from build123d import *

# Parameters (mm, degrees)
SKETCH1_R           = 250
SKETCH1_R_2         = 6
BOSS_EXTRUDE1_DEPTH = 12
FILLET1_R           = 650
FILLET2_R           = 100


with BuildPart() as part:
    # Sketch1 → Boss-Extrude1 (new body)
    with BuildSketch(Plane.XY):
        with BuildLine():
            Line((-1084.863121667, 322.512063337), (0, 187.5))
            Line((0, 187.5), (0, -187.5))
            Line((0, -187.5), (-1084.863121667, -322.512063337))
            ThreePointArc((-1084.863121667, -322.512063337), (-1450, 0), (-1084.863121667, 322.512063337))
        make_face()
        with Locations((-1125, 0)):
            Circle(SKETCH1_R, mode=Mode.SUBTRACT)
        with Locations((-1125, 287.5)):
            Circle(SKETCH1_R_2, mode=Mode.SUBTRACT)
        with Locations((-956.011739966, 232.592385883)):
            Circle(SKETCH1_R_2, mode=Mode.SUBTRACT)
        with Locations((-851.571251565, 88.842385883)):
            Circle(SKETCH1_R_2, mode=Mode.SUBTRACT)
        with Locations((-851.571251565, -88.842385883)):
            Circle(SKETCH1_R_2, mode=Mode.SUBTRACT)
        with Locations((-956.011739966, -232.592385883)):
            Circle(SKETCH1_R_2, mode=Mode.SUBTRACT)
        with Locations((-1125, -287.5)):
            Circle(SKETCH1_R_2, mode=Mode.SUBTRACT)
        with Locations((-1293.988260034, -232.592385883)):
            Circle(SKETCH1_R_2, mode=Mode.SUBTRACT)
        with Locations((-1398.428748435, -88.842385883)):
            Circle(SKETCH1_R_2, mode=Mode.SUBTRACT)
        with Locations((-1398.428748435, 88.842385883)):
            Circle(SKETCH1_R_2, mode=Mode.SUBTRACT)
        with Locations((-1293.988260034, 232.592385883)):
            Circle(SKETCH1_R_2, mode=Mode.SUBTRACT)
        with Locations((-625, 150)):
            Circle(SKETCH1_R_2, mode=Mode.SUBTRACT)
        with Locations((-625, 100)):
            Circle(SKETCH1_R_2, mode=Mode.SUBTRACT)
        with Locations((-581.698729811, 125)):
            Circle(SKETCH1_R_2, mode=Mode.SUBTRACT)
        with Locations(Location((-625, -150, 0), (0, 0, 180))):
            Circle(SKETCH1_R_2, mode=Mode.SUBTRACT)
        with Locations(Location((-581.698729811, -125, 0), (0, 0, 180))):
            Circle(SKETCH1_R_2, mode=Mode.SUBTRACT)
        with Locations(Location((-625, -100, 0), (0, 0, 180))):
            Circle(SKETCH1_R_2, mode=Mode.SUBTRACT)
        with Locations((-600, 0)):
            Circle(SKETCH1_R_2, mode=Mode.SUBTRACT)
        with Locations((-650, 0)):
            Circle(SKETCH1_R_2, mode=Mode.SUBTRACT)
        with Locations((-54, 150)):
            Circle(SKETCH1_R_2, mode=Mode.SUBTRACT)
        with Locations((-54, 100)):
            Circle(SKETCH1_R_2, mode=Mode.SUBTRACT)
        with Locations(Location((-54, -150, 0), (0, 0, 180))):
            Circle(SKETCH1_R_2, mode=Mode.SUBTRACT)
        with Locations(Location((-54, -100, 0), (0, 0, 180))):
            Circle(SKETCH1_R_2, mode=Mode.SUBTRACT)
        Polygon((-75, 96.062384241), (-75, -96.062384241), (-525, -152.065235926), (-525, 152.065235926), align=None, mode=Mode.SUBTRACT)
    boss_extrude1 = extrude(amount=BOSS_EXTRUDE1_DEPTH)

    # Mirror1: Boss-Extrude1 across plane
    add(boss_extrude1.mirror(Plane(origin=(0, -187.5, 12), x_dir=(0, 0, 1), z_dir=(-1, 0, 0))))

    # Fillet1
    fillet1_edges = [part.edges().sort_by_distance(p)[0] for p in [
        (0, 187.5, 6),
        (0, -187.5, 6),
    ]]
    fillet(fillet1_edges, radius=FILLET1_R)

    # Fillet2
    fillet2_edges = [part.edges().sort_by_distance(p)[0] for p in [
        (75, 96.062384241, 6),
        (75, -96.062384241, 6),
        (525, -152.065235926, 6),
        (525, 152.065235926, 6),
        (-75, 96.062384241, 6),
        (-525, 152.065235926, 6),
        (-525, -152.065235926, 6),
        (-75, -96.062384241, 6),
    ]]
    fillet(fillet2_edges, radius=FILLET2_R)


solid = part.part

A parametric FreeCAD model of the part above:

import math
import FreeCAD as App
import Part
import Sketcher
Q = App.Units.Quantity


def edges_at(feature, points):
    """Names of the edges that pass closest to the given points."""
    edges = feature.Shape.Edges
    near = lambda p: min(range(len(edges)), key=lambda i: edges[i].distToShape(Part.Vertex(*p))[0])
    return sorted({f"Edge{near(p) + 1}" for p in points})

doc = App.newDocument("Part")
body = doc.addObject("PartDesign::Body", "Body")

# Sketch on XY plane
sketch1 = doc.addObject("Sketcher::SketchObject", "Sketch")
body.addObject(sketch1)
sketch1.AttachmentSupport = (doc.XY_Plane, [""])
sketch1.MapMode = "FlatFace"
sketch1.addGeometry([
    Part.LineSegment(App.Vector(0, 188, 0), App.Vector(-1085, 323, 0)),  # 0
    Part.ArcOfCircle(Part.Circle(App.Vector(-1125, 0, 0), App.Vector(0, 0, 1), 325), math.radians(83), math.radians(277)),  # 1
    Part.LineSegment(App.Vector(-1085, -323, 0), App.Vector(0, -188, 0)),  # 2
    Part.LineSegment(App.Vector(0, -188, 0), App.Vector(0, 188, 0)),  # 3
    Part.Circle(App.Vector(-54, -150, 0), App.Vector(0, 0, 1), 6),  # 4
    Part.Circle(App.Vector(-625, -150, 0), App.Vector(0, 0, 1), 6),  # 5
    Part.Circle(App.Vector(-54, -100, 0), App.Vector(0, 0, 1), 6),  # 6
    Part.Circle(App.Vector(-582, -125, 0), App.Vector(0, 0, 1), 6),  # 7
    Part.Circle(App.Vector(-625, -100, 0), App.Vector(0, 0, 1), 6),  # 8
    Part.Circle(App.Vector(-956, -233, 0), App.Vector(0, 0, 1), 6),  # 9
    Part.Circle(App.Vector(-1125, -288, 0), App.Vector(0, 0, 1), 6),  # 10
    Part.Circle(App.Vector(-1294, -233, 0), App.Vector(0, 0, 1), 6),  # 11
    Part.Circle(App.Vector(-852, -89, 0), App.Vector(0, 0, 1), 6),  # 12
    Part.Circle(App.Vector(-1398, -89, 0), App.Vector(0, 0, 1), 6),  # 13
    Part.LineSegment(App.Vector(-75, 96, 0), App.Vector(-75, -96, 0)),  # 14
    Part.LineSegment(App.Vector(-75, -96, 0), App.Vector(-525, -152, 0)),  # 15
    Part.LineSegment(App.Vector(-525, -152, 0), App.Vector(-525, 152, 0)),  # 16
    Part.LineSegment(App.Vector(-525, 152, 0), App.Vector(-75, 96, 0)),  # 17
    Part.Circle(App.Vector(-54, 100, 0), App.Vector(0, 0, 1), 6),  # 18
    Part.Circle(App.Vector(-600, 0, 0), App.Vector(0, 0, 1), 6),  # 19
    Part.Circle(App.Vector(-650, 0, 0), App.Vector(0, 0, 1), 6),  # 20
    Part.Circle(App.Vector(-625, 100, 0), App.Vector(0, 0, 1), 6),  # 21
    Part.Circle(App.Vector(-582, 125, 0), App.Vector(0, 0, 1), 6),  # 22
    Part.Circle(App.Vector(-54, 150, 0), App.Vector(0, 0, 1), 6),  # 23
    Part.Circle(App.Vector(-625, 150, 0), App.Vector(0, 0, 1), 6),  # 24
    Part.Circle(App.Vector(-852, 89, 0), App.Vector(0, 0, 1), 6),  # 25
    Part.Circle(App.Vector(-1125, 0, 0), App.Vector(0, 0, 1), 250),  # 26
    Part.Circle(App.Vector(-1398, 89, 0), App.Vector(0, 0, 1), 6),  # 27
    Part.Circle(App.Vector(-956, 233, 0), App.Vector(0, 0, 1), 6),  # 28
    Part.Circle(App.Vector(-1125, 288, 0), App.Vector(0, 0, 1), 6),  # 29
    Part.Circle(App.Vector(-1294, 233, 0), App.Vector(0, 0, 1), 6),  # 30
], False)
sketch1.addConstraint([
    Sketcher.Constraint("Tangent", 0, 2, 1, 1),
    Sketcher.Constraint("Tangent", 1, 2, 2, 1),
    Sketcher.Constraint("Coincident", 2, 2, 3, 1),
    Sketcher.Constraint("Coincident", 3, 2, 0, 1),
    Sketcher.Constraint("Coincident", 14, 2, 15, 1),
    Sketcher.Constraint("Coincident", 15, 2, 16, 1),
    Sketcher.Constraint("Coincident", 16, 2, 17, 1),
    Sketcher.Constraint("Coincident", 17, 2, 14, 1),
    Sketcher.Constraint("Vertical", 3),
    Sketcher.Constraint("Vertical", 14),
    Sketcher.Constraint("Vertical", 16),
    Sketcher.Constraint("Coincident", 26, 3, 1, 3),
    Sketcher.Constraint("Equal", 4, 5),
    Sketcher.Constraint("Equal", 5, 6),
    Sketcher.Constraint("Equal", 6, 7),
    Sketcher.Constraint("Equal", 7, 8),
    Sketcher.Constraint("Equal", 8, 9),
    Sketcher.Constraint("Equal", 9, 10),
    Sketcher.Constraint("Equal", 10, 11),
    Sketcher.Constraint("Equal", 11, 12),
    Sketcher.Constraint("Equal", 12, 13),
    Sketcher.Constraint("Equal", 13, 18),
    Sketcher.Constraint("Equal", 18, 19),
    Sketcher.Constraint("Equal", 19, 20),
    Sketcher.Constraint("Equal", 20, 21),
    Sketcher.Constraint("Equal", 21, 22),
    Sketcher.Constraint("Equal", 22, 23),
    Sketcher.Constraint("Equal", 23, 24),
    Sketcher.Constraint("Equal", 24, 25),
    Sketcher.Constraint("Equal", 25, 27),
    Sketcher.Constraint("Equal", 27, 28),
    Sketcher.Constraint("Equal", 28, 29),
    Sketcher.Constraint("Equal", 29, 30),
    Sketcher.Constraint("Symmetric", 2, 2, 3, 2, -1, 1),
    Sketcher.Constraint("Symmetric", 6, 3, 18, 3, -1),
    Sketcher.Constraint("Symmetric", 8, 3, 21, 3, -1),
    Sketcher.Constraint("Symmetric", 7, 3, 22, 3, -1),
    Sketcher.Constraint("Symmetric", 4, 3, 23, 3, -1),
    Sketcher.Constraint("Symmetric", 5, 3, 24, 3, -1),
    Sketcher.Constraint("Symmetric", 12, 3, 25, 3, -1),
    Sketcher.Constraint("Symmetric", 13, 3, 27, 3, -1),
    Sketcher.Constraint("Symmetric", 9, 3, 28, 3, -1),
    Sketcher.Constraint("Symmetric", 10, 3, 29, 3, -1),
    Sketcher.Constraint("Symmetric", 11, 3, 30, 3, -1),
    Sketcher.Constraint("PointOnObject", 1, 3, -1),
    Sketcher.Constraint("PointOnObject", 19, 3, -1),
    Sketcher.Constraint("PointOnObject", 20, 3, -1),
    Sketcher.Constraint("Parallel", 2, 15),
    Sketcher.Constraint("Parallel", 0, 17),
    Sketcher.Constraint("Horizontal", 4, 3, 5, 3),
    Sketcher.Constraint("Horizontal", 6, 3, 8, 3),
    Sketcher.Constraint("Horizontal", 9, 3, 11, 3),
    Sketcher.Constraint("Horizontal", 12, 3, 13, 3),
    Sketcher.Constraint("Vertical", 4, 3, 6, 3),
    Sketcher.Constraint("Vertical", 5, 3, 8, 3),
    Sketcher.Constraint("Vertical", 1, 3, 10, 3),
    Sketcher.Constraint("Diameter", 4, Q("12 mm")),
    Sketcher.Constraint("Diameter", 26, Q("500 mm")),
    Sketcher.Constraint("Radius", 1, Q("325 mm")),
    Sketcher.Constraint("DistanceY", 3, 1, 3, 2, Q("375 mm")),
    Sketcher.Constraint("DistanceX", 1, 3, -1, 1, Q("1125 mm")),
    Sketcher.Constraint("DistanceX", 4, 3, -1, 1, Q("54 mm")),
    Sketcher.Constraint("DistanceY", 4, 3, -1, 1, Q("150 mm")),
    Sketcher.Constraint("DistanceX", 5, 3, -1, 1, Q("625 mm")),
    Sketcher.Constraint("DistanceY", 6, 3, -1, 1, Q("100 mm")),
    Sketcher.Constraint("DistanceY", 7, 3, -1, 1, Q("125 mm")),
    Sketcher.Constraint("DistanceX", 19, 3, -1, 1, Q("600 mm")),
    Sketcher.Constraint("DistanceX", 20, 3, -1, 1, Q("650 mm")),
    Sketcher.Constraint("DistanceX", 14, 2, -1, 1, Q("75 mm")),
    Sketcher.Constraint("DistanceX", 15, 2, -1, 1, Q("525 mm")),
    Sketcher.Constraint("DistanceY", 10, 3, -1, 1, Q("287.5 mm")),
    Sketcher.Constraint("DistanceY", 9, 3, 12, 3, Q("143.75 mm")),
    Sketcher.Constraint("DistanceY", 14, 2, 14, 1, Q("192.124768 mm")),
    Sketcher.Constraint("DistanceX", 7, 3, -1, 1, Q("581.69873 mm")),
    Sketcher.Constraint("DistanceX", 9, 3, -1, 1, Q("956.01174 mm")),
    Sketcher.Constraint("DistanceX", 11, 3, -1, 1, Q("1293.98826 mm")),
    Sketcher.Constraint("DistanceX", 12, 3, -1, 1, Q("851.571252 mm")),
    Sketcher.Constraint("DistanceX", 13, 3, -1, 1, Q("1398.428748 mm")),
    Sketcher.Constraint("DistanceY", 12, 3, 25, 3, Q("177.684772 mm")),
    Sketcher.Constraint("DistanceY", 14, 2, -1, 1, Q("96.062384 mm")),
])
pad1 = doc.addObject("PartDesign::Pad", "Pad")
body.addObject(pad1)
pad1.Profile = sketch1
pad1.Length = 12
doc.recompute()

mirrored = doc.addObject("PartDesign::Mirrored", "Mirrored")
body.addObject(mirrored)
mirrored.Originals = [pad1]
mirrored.MirrorPlane = (doc.YZ_Plane, [""])
body.Tip = mirrored
doc.recompute()

fillet = doc.addObject("PartDesign::Fillet", "Fillet")
body.addObject(fillet)
fillet.Base = (mirrored, edges_at(mirrored, [(0, 187.5, 6), (0, -187.5, 6)]))
fillet.Radius = 650
doc.recompute()

fillet2 = doc.addObject("PartDesign::Fillet", "Fillet001")
body.addObject(fillet2)
fillet2.Base = (fillet, edges_at(fillet, [
    (75, 96.062, 6),
    (75, -96.062, 6),
    (525, -152.065, 6),
    (525, 152.065, 6),
    (-75, 96.062, 6),
    (-525, 152.065, 6),
    (-525, -152.065, 6),
    (-75, -96.062, 6),
]))
fillet2.Radius = 100

doc.recompute()
